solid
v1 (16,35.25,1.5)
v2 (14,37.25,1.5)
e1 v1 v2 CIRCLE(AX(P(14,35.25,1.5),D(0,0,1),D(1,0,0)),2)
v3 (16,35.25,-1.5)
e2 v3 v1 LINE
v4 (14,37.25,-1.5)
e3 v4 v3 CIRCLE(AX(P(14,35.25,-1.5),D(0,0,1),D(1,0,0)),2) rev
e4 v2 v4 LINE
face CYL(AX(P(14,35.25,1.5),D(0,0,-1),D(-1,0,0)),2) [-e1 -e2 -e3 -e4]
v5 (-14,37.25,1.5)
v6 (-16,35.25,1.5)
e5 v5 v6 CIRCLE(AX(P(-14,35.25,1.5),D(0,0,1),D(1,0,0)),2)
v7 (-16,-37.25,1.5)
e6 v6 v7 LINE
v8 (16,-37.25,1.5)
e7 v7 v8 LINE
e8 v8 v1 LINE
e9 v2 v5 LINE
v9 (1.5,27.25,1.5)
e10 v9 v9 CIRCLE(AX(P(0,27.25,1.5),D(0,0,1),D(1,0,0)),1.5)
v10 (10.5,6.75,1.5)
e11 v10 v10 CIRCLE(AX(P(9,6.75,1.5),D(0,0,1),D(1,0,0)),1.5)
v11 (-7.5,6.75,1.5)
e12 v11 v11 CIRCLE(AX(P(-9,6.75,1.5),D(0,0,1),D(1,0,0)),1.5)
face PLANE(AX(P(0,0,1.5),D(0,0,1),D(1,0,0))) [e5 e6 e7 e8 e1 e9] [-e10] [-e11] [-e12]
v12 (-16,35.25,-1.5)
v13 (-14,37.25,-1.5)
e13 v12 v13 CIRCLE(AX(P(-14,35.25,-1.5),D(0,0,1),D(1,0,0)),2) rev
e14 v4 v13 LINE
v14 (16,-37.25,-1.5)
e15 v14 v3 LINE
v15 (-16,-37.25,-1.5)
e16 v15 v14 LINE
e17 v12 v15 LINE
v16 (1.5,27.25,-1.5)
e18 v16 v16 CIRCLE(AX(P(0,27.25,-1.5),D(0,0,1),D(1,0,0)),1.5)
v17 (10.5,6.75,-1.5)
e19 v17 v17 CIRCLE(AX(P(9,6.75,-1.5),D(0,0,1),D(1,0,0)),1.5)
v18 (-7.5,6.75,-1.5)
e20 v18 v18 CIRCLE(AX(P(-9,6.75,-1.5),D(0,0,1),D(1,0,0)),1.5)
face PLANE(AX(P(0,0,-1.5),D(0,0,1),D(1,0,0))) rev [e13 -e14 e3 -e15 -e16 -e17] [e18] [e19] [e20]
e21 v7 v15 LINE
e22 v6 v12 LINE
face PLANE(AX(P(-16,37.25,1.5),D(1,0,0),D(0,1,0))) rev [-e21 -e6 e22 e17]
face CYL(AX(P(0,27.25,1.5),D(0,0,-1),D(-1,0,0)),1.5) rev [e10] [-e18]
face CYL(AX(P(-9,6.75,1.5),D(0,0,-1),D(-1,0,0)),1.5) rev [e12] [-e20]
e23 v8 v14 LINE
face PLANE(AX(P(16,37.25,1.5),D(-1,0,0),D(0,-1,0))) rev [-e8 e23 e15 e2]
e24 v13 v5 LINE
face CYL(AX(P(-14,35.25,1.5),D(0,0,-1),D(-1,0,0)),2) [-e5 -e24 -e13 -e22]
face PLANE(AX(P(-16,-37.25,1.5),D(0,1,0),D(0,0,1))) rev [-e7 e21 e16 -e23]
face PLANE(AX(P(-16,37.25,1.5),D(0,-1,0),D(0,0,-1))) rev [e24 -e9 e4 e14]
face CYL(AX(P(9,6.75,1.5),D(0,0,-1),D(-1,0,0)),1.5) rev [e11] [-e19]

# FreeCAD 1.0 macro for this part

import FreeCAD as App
import Part
import Sketcher
from FreeCAD import Vector
Q = App.Units.Quantity


def edges_at(feature, points):
    """Names of the edges that pass closest to the given points."""
    edges = feature.Shape.Edges
    near = lambda p: min(range(len(edges)), key=lambda i: edges[i].distToShape(Part.Vertex(*p))[0])
    return sorted({f"Edge{near(p) + 1}" for p in points})

doc = App.newDocument("Part")
body = doc.addObject("PartDesign::Body", "Body")

sketch1 = doc.addObject("Sketcher::SketchObject", "Sketch")
body.addObject(sketch1)
sketch1.AttachmentSupport = (doc.XY_Plane, [""])
sketch1.MapMode = "FlatFace"
sketch1.addGeometry(Part.LineSegment(Vector(-16, 37.2, 0), Vector(-16, -37.2, 0)), False)
sketch1.addGeometry(Part.LineSegment(Vector(-16, -37.2, 0), Vector(16, -37.2, 0)), False)
sketch1.addGeometry(Part.LineSegment(Vector(16, -37.2, 0), Vector(16, 37.2, 0)), False)
sketch1.addGeometry(Part.LineSegment(Vector(16, 37.2, 0), Vector(-16, 37.2, 0)), False)
sketch1.addGeometry(Part.Circle(Vector(-9, 6.8, 0), Vector(0, 0, 1), 1.5), False)
sketch1.addGeometry(Part.Circle(Vector(9, 6.8, 0), Vector(0, 0, 1), 1.5), False)
sketch1.addGeometry(Part.Circle(Vector(0, 27.2, 0), Vector(0, 0, 1), 1.5), False)
sketch1.addConstraint(Sketcher.Constraint("Coincident", 0, 2, 1, 1))
sketch1.addConstraint(Sketcher.Constraint("Coincident", 1, 2, 2, 1))
sketch1.addConstraint(Sketcher.Constraint("Coincident", 2, 2, 3, 1))
sketch1.addConstraint(Sketcher.Constraint("Coincident", 3, 2, 0, 1))
sketch1.addConstraint(Sketcher.Constraint("Vertical", 0))
sketch1.addConstraint(Sketcher.Constraint("Horizontal", 1))
sketch1.addConstraint(Sketcher.Constraint("Vertical", 2))
sketch1.addConstraint(Sketcher.Constraint("Horizontal", 3))
sketch1.addConstraint(Sketcher.Constraint("Equal", 4, 5))
sketch1.addConstraint(Sketcher.Constraint("Equal", 5, 6))
sketch1.addConstraint(Sketcher.Constraint("Symmetric", 0, 2, 2, 2, -1, 1))
sketch1.addConstraint(Sketcher.Constraint("Symmetric", 4, 3, 5, 3, -2))
sketch1.addConstraint(Sketcher.Constraint("PointOnObject", 6, 3, -2))
sketch1.addConstraint(Sketcher.Constraint("Diameter", 4, Q("3 mm")))
sketch1.addConstraint(Sketcher.Constraint("DistanceX", 1, 1, 1, 2, Q("32 mm")))
sketch1.addConstraint(Sketcher.Constraint("DistanceY", 0, 2, 0, 1, Q("74.5 mm")))
sketch1.addConstraint(Sketcher.Constraint("DistanceX", 4, 3, -1, 1, Q("9 mm")))
sketch1.addConstraint(Sketcher.Constraint("DistanceY", 0, 2, 4, 3, Q("44 mm")))
sketch1.addConstraint(Sketcher.Constraint("DistanceY", 6, 3, 2, 2, Q("10 mm")))
pad1 = doc.addObject("PartDesign::Pad", "Pad")
body.addObject(pad1)
pad1.Profile = sketch1
pad1.Length = 3
pad1.Midplane = True
doc.recompute()

fillet = doc.addObject("PartDesign::Fillet", "Fillet")
body.addObject(fillet)
fillet.Base = (pad1, edges_at(pad1, [(-16, 37.25, 0), (16, 37.25, 0)]))
fillet.Radius = 2

doc.recompute()
